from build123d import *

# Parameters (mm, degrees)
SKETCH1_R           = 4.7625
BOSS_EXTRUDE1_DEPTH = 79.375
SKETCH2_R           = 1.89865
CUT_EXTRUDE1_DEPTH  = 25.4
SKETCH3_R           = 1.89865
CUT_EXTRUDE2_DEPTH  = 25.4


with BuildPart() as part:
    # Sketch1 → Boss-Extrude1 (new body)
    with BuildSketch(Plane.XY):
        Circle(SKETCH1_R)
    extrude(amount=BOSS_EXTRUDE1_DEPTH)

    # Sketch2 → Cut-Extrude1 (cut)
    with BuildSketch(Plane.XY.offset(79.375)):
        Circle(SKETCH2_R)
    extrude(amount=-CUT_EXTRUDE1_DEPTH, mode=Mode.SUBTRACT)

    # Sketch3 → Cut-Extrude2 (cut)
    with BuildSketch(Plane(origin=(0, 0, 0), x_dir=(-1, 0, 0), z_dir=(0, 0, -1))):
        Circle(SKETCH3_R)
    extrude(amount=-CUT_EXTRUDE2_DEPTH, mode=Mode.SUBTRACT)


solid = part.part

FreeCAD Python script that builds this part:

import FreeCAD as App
import Part
import Sketcher
from FreeCAD import Vector
Q = App.Units.Quantity

doc = App.newDocument("Part")
body = doc.addObject("PartDesign::Body", "Body")

# Sketch on XY plane
sketch1 = body.newObject("Sketcher::SketchObject", "Sketch")
sketch1.AttachmentSupport = (doc.getObject("XY_Plane"), [""])
sketch1.MapMode = "FlatFace"
sketch1.addGeometry(Part.Circle(Vector(0, 0, 0), Vector(0, 0, 1), 4.8), False)
sketch1.addConstraint([
    Sketcher.Constraint("Coincident", 0, 3, -1, 1),
    Sketcher.Constraint("Diameter", 0, Q("0.375 in")),
])
pad1 = body.newObject("PartDesign::Pad", "Pad")
pad1.Profile = sketch1
pad1.Length = Q("3.125 in")

# Sketch on XY plane
sketch2 = body.newObject("Sketcher::SketchObject", "Sketch001")
sketch2.AttachmentSupport = (doc.getObject("XY_Plane"), [""])
sketch2.MapMode = "FlatFace"
sketch2.AttachmentOffset = App.Placement(Vector(0, 0, 3.125 * 25.4), App.Rotation())
sketch2.addGeometry(Part.Circle(Vector(0, 0, 0), Vector(0, 0, 1), 1.9), False)
sketch2.addConstraint([
    Sketcher.Constraint("Coincident", 0, 3, -1, 1),
    Sketcher.Constraint("Diameter", 0, Q("0.1495 in")),
])
pocket1 = body.newObject("PartDesign::Pocket", "Pocket")
pocket1.Profile = sketch2
pocket1.Length = Q("1 in")

# Sketch on XY plane
sketch3 = body.newObject("Sketcher::SketchObject", "Sketch002")
sketch3.AttachmentSupport = (doc.getObject("XY_Plane"), [""])
sketch3.MapMode = "FlatFace"
sketch3.addGeometry(Part.Circle(Vector(0, 0, 0), Vector(0, 0, 1), 1.9), False)
sketch3.addConstraint([
    Sketcher.Constraint("Coincident", 0, 3, -1, 1),
    Sketcher.Constraint("Diameter", 0, Q("0.1495 in")),
])
pocket2 = body.newObject("PartDesign::Pocket", "Pocket001")
pocket2.Profile = sketch3
pocket2.Length = Q("1 in")
pocket2.Reversed = True

doc.recompute()
